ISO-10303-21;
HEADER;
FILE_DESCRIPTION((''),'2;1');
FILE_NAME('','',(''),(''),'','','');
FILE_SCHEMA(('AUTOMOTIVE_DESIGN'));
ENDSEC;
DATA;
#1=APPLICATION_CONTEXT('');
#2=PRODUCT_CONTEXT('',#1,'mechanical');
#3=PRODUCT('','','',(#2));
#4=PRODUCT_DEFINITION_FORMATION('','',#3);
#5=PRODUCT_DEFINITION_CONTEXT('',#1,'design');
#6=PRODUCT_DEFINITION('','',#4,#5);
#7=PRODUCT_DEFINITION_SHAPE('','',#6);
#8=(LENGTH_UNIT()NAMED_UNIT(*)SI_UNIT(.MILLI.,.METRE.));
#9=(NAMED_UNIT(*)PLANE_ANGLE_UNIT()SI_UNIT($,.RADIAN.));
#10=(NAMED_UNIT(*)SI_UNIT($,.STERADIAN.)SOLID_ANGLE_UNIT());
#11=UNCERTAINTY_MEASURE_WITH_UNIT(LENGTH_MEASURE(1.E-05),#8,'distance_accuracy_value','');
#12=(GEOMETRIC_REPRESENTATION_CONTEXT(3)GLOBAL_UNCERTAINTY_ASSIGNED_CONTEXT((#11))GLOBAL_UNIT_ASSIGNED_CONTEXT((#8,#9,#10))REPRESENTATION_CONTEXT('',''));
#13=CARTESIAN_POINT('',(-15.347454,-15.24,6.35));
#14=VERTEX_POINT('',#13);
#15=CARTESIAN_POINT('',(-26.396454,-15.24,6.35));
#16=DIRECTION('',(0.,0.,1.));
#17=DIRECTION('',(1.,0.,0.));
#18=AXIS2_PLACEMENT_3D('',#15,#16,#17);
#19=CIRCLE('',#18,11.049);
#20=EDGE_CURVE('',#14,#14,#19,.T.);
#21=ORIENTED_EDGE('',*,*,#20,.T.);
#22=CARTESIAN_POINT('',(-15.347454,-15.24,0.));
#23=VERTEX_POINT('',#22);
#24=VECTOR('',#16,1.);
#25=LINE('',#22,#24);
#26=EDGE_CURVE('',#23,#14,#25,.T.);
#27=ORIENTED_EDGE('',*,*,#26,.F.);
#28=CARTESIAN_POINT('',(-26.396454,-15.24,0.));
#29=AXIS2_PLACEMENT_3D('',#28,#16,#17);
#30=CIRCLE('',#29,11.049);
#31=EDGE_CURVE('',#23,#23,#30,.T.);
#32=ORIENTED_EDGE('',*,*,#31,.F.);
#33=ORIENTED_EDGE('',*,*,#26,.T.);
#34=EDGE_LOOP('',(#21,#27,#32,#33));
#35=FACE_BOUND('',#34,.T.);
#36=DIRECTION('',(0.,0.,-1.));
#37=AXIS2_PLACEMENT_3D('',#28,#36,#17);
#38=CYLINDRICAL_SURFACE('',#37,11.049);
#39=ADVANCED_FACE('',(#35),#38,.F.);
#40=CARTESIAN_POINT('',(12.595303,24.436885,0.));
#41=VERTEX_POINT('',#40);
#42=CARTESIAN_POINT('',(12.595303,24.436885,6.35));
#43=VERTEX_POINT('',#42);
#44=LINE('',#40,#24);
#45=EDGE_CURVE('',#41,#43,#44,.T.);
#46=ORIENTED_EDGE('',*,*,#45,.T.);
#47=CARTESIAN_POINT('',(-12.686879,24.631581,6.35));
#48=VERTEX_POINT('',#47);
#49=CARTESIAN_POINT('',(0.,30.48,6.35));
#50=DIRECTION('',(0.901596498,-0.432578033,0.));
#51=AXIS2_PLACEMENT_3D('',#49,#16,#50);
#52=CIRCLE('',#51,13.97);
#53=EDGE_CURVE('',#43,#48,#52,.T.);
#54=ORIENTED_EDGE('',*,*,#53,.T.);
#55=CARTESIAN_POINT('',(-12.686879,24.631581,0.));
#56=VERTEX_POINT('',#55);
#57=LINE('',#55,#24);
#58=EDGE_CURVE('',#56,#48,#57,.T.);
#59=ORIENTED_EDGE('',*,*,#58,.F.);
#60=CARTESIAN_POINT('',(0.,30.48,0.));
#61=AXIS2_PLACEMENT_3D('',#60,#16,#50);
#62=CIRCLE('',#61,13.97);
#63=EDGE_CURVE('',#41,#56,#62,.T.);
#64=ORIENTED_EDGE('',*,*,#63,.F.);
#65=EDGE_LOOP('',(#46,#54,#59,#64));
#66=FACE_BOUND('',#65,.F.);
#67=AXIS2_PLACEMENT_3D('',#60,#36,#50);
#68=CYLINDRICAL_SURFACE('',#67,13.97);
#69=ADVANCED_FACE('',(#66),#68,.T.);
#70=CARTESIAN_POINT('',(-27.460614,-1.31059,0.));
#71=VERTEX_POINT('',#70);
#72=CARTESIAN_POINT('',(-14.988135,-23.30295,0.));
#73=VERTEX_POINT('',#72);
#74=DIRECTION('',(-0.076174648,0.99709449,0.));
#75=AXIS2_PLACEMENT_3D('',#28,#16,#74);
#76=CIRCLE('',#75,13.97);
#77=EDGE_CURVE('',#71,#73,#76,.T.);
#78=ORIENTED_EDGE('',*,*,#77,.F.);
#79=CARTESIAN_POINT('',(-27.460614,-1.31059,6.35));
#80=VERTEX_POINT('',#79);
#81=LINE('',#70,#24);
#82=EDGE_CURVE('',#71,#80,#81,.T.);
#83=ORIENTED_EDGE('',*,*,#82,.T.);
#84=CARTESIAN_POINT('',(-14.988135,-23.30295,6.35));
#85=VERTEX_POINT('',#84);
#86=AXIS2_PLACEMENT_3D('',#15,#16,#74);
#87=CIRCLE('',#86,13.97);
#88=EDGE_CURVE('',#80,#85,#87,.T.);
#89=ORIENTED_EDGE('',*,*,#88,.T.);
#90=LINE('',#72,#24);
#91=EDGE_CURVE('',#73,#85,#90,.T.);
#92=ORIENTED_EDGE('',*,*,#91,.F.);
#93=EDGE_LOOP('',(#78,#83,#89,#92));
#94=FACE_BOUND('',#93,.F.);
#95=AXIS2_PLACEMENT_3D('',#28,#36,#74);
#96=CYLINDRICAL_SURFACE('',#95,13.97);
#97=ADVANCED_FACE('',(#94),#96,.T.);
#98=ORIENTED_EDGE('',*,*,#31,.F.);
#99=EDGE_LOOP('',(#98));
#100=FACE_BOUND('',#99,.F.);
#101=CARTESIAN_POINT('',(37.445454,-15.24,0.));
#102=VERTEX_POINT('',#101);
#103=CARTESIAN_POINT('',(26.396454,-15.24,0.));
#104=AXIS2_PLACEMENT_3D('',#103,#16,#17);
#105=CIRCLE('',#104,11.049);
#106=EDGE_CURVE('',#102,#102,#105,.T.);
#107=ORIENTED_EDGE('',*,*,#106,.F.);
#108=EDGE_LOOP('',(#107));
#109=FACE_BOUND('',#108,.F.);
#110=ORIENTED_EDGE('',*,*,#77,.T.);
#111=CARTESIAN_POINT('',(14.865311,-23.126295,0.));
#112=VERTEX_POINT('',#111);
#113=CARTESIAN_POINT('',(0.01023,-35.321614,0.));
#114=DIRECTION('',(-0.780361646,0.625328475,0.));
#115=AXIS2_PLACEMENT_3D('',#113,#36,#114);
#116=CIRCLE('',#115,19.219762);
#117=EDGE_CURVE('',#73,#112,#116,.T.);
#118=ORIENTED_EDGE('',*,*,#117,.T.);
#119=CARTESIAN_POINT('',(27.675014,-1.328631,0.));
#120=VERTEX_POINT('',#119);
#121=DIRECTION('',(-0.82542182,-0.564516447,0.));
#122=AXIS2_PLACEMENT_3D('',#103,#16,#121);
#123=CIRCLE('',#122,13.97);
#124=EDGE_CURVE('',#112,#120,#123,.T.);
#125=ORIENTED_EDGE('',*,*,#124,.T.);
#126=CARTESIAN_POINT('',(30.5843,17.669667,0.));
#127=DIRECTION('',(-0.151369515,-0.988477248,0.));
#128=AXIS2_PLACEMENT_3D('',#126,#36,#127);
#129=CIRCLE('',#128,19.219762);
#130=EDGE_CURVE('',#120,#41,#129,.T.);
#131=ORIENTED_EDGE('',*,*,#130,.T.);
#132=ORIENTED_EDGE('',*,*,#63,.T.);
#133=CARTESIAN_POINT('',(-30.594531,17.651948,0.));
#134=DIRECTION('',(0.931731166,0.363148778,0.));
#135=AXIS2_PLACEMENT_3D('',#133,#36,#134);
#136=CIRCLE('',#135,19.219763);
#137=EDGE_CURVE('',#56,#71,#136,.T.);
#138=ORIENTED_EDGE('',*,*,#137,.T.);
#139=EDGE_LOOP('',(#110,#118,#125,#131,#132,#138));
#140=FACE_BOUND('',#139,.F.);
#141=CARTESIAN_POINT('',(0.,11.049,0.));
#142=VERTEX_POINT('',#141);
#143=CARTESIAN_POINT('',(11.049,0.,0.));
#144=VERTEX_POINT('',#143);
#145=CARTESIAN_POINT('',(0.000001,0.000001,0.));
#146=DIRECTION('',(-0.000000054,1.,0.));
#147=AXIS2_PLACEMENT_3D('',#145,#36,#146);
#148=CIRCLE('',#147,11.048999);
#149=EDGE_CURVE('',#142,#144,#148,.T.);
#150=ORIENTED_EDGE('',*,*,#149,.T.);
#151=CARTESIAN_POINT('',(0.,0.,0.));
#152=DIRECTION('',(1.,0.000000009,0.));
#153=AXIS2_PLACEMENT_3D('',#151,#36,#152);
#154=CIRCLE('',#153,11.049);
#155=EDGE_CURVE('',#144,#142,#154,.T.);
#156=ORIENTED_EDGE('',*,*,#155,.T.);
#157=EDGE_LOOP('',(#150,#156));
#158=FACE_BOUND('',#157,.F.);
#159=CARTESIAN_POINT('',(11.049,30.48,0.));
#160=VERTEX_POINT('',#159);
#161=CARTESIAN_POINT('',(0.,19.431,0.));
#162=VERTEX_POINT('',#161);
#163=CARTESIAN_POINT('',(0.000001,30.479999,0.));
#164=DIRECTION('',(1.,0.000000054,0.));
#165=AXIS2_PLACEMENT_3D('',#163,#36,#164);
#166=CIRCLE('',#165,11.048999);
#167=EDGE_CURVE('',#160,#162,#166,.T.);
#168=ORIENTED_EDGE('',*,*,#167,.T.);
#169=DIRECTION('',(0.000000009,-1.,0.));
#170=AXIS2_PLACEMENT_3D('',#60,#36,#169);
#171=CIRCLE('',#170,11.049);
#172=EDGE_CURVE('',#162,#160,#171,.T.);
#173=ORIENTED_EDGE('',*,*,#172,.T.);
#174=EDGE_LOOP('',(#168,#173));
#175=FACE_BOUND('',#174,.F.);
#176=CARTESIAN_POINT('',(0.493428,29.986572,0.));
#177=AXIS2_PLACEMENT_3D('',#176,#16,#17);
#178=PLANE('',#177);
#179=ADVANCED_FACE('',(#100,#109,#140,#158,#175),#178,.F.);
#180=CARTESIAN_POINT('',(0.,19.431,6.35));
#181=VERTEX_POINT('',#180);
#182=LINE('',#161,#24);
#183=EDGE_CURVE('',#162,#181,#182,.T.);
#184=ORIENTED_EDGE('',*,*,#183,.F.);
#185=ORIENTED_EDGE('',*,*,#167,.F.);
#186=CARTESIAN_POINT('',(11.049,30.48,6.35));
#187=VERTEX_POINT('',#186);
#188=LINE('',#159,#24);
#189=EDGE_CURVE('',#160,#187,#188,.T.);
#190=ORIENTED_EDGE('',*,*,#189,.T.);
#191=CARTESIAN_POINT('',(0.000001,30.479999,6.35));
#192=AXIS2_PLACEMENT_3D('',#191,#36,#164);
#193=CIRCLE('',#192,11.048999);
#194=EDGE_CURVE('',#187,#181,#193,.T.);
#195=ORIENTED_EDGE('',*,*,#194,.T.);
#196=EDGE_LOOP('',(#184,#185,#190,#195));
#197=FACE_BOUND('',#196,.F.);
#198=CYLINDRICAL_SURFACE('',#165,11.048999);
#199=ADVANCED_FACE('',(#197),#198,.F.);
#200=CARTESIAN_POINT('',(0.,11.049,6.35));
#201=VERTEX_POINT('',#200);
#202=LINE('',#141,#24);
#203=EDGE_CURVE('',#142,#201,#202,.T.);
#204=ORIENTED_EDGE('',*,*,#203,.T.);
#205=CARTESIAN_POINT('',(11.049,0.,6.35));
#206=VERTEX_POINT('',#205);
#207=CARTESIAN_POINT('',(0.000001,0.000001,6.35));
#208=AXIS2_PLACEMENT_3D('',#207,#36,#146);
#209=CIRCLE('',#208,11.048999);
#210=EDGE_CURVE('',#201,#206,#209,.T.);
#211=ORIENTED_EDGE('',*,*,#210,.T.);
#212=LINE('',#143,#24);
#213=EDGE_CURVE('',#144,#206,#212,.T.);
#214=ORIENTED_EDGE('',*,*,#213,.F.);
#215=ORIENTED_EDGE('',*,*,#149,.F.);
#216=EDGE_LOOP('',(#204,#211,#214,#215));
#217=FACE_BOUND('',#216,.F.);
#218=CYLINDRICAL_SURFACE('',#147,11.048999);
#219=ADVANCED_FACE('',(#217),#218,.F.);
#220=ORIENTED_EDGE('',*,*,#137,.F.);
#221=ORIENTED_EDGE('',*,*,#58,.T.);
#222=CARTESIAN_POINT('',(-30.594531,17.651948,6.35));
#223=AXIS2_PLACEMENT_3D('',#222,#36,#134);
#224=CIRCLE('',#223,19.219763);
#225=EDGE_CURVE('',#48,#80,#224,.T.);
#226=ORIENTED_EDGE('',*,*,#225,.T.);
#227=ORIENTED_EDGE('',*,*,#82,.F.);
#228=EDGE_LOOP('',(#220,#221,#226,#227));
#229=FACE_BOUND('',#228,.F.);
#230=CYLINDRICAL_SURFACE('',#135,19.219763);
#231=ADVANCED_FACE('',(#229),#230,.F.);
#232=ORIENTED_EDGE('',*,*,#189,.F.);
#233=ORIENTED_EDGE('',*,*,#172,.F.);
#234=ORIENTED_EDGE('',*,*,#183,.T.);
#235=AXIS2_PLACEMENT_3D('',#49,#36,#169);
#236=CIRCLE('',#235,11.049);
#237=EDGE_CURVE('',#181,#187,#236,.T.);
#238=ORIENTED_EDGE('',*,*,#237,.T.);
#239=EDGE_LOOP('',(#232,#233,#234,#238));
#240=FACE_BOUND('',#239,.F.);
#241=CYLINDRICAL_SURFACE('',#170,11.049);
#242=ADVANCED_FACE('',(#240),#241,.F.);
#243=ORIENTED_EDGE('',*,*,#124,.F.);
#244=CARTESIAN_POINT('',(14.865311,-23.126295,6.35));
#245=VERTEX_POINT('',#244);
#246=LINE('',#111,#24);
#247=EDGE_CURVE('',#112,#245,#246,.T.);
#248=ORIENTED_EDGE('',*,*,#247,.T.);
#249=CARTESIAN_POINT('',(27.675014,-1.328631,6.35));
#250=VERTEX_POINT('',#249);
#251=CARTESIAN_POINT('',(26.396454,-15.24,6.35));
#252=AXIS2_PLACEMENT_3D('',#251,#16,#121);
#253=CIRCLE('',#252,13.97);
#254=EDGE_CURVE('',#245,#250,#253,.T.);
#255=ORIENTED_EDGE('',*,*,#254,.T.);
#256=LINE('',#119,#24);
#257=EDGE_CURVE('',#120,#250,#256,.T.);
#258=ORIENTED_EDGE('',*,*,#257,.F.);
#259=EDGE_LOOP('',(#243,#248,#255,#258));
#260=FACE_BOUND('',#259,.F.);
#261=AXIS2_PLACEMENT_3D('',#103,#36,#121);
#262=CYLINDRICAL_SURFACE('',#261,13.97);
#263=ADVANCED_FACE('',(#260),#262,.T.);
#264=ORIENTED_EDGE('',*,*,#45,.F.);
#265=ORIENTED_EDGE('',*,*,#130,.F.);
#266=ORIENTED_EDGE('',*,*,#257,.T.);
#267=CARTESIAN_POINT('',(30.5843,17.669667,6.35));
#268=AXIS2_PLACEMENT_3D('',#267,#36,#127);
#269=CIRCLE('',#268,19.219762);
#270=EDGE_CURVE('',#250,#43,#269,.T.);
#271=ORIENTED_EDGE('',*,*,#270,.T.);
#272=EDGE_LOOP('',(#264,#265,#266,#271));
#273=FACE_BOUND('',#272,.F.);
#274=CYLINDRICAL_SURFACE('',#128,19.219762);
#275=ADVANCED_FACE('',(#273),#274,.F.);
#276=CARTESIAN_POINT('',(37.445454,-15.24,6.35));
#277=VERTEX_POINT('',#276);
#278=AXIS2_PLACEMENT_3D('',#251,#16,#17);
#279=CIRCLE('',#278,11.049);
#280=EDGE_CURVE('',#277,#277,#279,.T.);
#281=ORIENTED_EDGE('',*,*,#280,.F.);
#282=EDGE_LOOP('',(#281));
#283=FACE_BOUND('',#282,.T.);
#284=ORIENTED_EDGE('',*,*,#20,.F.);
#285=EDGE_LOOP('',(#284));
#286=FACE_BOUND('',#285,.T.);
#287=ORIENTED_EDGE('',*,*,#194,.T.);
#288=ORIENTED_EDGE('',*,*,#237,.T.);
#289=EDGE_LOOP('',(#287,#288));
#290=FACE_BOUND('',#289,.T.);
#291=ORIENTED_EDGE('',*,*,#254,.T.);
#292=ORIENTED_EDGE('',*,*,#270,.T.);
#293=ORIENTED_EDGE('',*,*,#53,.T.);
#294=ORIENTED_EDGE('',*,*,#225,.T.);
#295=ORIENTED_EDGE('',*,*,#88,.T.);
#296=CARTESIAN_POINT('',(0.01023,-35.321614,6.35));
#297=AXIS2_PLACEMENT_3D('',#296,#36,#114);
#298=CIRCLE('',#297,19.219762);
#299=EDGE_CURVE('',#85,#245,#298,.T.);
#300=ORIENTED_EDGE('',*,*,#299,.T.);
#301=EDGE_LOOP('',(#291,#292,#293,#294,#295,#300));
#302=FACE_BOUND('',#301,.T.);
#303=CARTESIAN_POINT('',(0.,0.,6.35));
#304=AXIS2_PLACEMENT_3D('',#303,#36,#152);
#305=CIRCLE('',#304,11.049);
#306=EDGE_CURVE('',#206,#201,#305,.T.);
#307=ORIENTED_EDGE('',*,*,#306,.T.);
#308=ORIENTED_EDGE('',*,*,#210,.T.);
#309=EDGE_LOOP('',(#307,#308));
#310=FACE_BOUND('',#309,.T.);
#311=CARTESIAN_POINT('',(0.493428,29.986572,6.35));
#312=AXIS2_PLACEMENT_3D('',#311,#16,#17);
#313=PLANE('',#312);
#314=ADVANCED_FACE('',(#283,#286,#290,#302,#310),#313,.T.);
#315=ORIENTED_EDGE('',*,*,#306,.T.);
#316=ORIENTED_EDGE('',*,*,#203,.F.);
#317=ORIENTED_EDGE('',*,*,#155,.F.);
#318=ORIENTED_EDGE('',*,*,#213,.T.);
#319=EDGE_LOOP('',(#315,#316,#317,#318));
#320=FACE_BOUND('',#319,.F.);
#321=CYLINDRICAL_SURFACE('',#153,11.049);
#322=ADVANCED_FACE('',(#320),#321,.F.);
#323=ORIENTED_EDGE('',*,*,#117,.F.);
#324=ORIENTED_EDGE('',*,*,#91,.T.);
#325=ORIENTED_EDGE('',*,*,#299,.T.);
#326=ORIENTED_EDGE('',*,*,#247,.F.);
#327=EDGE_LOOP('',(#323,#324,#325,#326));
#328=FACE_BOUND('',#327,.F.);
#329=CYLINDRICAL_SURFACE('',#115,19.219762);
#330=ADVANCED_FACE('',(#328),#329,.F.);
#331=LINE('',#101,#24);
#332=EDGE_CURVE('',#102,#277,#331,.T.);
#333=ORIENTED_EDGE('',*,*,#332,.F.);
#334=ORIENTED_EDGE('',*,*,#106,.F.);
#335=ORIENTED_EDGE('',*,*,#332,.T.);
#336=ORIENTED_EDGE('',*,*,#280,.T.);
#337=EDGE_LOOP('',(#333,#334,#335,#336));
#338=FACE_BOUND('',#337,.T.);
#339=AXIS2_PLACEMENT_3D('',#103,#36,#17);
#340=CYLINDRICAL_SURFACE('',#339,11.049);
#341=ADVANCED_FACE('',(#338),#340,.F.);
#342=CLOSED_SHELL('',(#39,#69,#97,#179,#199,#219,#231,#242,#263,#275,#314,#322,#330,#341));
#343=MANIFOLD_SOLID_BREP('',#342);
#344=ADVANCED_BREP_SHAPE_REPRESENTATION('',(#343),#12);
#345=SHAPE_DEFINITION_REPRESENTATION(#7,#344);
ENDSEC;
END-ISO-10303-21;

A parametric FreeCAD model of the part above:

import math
import FreeCAD as App
import Part
import Sketcher

V = App.Vector
Q = App.Units.Quantity

doc = App.newDocument("Part")
body = doc.addObject("PartDesign::Body", "Body")

sketch1 = doc.addObject("Sketcher::SketchObject", "Sketch")
body.addObject(sketch1)
sketch1.AttachmentSupport = (doc.XY_Plane, [""])
sketch1.MapMode = "FlatFace"
sketch1.addGeometry([
    Part.ArcOfCircle(Part.Circle(V(-30.594531, 17.651948, 0), V(0, 0, 1), 19.219763), math.radians(-80.61562), math.radians(21.2937)),
    Part.ArcOfCircle(Part.Circle(V(-26.396454, -15.24, 0), V(0, 0, 1), 13.97), math.radians(94.368718), math.radians(324.748838)),
    Part.ArcOfCircle(Part.Circle(V(0.01023, -35.321614, 0), V(0, 0, 1), 19.219762), math.radians(39.384378), math.radians(141.293699)),
    Part.ArcOfCircle(Part.Circle(V(26.396454, -15.24, 0), V(0, 0, 1), 13.97), math.radians(-145.631281), math.radians(84.748837)),
    Part.ArcOfCircle(Part.Circle(V(30.5843, 17.669667, 0), V(0, 0, 1), 19.219762), math.radians(159.384377), math.radians(261.2937)),
    Part.ArcOfCircle(Part.Circle(V(0, 30.48, 0), V(0, 0, 1), 13.97), math.radians(-25.63128), math.radians(204.748838)),
    Part.Circle(V(-26.396454, -15.24, 0), V(0, 0, 1), 11.049),
    Part.ArcOfCircle(Part.Circle(V(0.000001, 0.000001, 0), V(0, 0, 1), 11.048999), math.radians(-0.000003), math.radians(90.000003)),
    Part.ArcOfCircle(Part.Circle(V(0, 0, 0), V(0, 0, 1), 11.049), math.radians(89.999999), math.radians(360.000001)),
    Part.Circle(V(26.396454, -15.24, 0), V(0, 0, 1), 11.049),
    Part.ArcOfCircle(Part.Circle(V(0, 30.48, 0), V(0, 0, 1), 11.049), math.radians(-0.000001), math.radians(270.000001)),
    Part.ArcOfCircle(Part.Circle(V(0.000001, 30.479999, 0), V(0, 0, 1), 11.048999), math.radians(-90.000003), math.radians(0.000003)),
], False)
sketch1.addConstraint([
    Sketcher.Constraint("Coincident", 0, 1, 1, 1),
    Sketcher.Constraint("Coincident", 1, 2, 2, 2),
    Sketcher.Constraint("Coincident", 2, 1, 3, 1),
    Sketcher.Constraint("Coincident", 3, 2, 4, 2),
    Sketcher.Constraint("Coincident", 4, 1, 5, 1),
    Sketcher.Constraint("Coincident", 5, 2, 0, 2),
    Sketcher.Constraint("Tangent", 7, 1, 8, 2),
    Sketcher.Constraint("Coincident", 8, 1, 7, 2),
    Sketcher.Constraint("Tangent", 10, 1, 11, 2),
    Sketcher.Constraint("Coincident", 11, 1, 10, 2),
    Sketcher.Constraint("Coincident", 7, 3, -1, 1),
    Sketcher.Constraint("Coincident", 6, 3, 1, 3),
    Sketcher.Constraint("Coincident", 9, 3, 3, 3),
    Sketcher.Constraint("Coincident", 10, 3, 5, 3),
    Sketcher.Constraint("Equal", 0, 2),
    Sketcher.Constraint("Equal", 1, 3),
    Sketcher.Constraint("Equal", 2, 4),
    Sketcher.Constraint("Equal", 3, 5),
    Sketcher.Constraint("Equal", 6, 7),
    Sketcher.Constraint("Equal", 8, 9),
    Sketcher.Constraint("Equal", 9, 10),
    Sketcher.Constraint("Symmetric", 1, 3, 3, 3, -2),
    Sketcher.Constraint("PointOnObject", 5, 3, -2),
    Sketcher.Constraint("PointOnObject", 7, 1, -1),
    Sketcher.Constraint("PointOnObject", 8, 1, -2),
    Sketcher.Constraint("PointOnObject", 11, 1, -2),
    Sketcher.Constraint("Horizontal", 11, 3, 10, 1),
    Sketcher.Constraint("Diameter", 6, Q("0.87 in")),
    Sketcher.Constraint("Radius", 1, Q("0.55 in")),
    Sketcher.Constraint("DistanceY", 1, 3, -1, 1, Q("0.6 in")),
    Sketcher.Constraint("DistanceY", -1, 1, 5, 3, Q("1.2 in")),
    Sketcher.Constraint("Radius", 2, Q("19.219762 mm")),
    Sketcher.Constraint("DistanceX", -1, 1, 4, 3, Q("30.5843 mm")),
    Sketcher.Constraint("DistanceX", 0, 3, -1, 1, Q("30.594531 mm")),
    Sketcher.Constraint("DistanceX", -1, 1, 2, 3, Q("0.01023 mm")),
    Sketcher.Constraint("DistanceY", 0, 1, -1, 1, Q("1.31059 mm")),
    Sketcher.Constraint("DistanceY", 1, 2, -1, 1, Q("23.30295 mm")),
    Sketcher.Constraint("DistanceX", -1, 1, 2, 1, Q("14.865311 mm")),
    Sketcher.Constraint("DistanceY", 3, 2, -1, 1, Q("1.328631 mm")),
])
pad1 = doc.addObject("PartDesign::Pad", "Pad")
body.addObject(pad1)
pad1.Profile = sketch1
pad1.Length = Q("0.25 in")

doc.recompute()
